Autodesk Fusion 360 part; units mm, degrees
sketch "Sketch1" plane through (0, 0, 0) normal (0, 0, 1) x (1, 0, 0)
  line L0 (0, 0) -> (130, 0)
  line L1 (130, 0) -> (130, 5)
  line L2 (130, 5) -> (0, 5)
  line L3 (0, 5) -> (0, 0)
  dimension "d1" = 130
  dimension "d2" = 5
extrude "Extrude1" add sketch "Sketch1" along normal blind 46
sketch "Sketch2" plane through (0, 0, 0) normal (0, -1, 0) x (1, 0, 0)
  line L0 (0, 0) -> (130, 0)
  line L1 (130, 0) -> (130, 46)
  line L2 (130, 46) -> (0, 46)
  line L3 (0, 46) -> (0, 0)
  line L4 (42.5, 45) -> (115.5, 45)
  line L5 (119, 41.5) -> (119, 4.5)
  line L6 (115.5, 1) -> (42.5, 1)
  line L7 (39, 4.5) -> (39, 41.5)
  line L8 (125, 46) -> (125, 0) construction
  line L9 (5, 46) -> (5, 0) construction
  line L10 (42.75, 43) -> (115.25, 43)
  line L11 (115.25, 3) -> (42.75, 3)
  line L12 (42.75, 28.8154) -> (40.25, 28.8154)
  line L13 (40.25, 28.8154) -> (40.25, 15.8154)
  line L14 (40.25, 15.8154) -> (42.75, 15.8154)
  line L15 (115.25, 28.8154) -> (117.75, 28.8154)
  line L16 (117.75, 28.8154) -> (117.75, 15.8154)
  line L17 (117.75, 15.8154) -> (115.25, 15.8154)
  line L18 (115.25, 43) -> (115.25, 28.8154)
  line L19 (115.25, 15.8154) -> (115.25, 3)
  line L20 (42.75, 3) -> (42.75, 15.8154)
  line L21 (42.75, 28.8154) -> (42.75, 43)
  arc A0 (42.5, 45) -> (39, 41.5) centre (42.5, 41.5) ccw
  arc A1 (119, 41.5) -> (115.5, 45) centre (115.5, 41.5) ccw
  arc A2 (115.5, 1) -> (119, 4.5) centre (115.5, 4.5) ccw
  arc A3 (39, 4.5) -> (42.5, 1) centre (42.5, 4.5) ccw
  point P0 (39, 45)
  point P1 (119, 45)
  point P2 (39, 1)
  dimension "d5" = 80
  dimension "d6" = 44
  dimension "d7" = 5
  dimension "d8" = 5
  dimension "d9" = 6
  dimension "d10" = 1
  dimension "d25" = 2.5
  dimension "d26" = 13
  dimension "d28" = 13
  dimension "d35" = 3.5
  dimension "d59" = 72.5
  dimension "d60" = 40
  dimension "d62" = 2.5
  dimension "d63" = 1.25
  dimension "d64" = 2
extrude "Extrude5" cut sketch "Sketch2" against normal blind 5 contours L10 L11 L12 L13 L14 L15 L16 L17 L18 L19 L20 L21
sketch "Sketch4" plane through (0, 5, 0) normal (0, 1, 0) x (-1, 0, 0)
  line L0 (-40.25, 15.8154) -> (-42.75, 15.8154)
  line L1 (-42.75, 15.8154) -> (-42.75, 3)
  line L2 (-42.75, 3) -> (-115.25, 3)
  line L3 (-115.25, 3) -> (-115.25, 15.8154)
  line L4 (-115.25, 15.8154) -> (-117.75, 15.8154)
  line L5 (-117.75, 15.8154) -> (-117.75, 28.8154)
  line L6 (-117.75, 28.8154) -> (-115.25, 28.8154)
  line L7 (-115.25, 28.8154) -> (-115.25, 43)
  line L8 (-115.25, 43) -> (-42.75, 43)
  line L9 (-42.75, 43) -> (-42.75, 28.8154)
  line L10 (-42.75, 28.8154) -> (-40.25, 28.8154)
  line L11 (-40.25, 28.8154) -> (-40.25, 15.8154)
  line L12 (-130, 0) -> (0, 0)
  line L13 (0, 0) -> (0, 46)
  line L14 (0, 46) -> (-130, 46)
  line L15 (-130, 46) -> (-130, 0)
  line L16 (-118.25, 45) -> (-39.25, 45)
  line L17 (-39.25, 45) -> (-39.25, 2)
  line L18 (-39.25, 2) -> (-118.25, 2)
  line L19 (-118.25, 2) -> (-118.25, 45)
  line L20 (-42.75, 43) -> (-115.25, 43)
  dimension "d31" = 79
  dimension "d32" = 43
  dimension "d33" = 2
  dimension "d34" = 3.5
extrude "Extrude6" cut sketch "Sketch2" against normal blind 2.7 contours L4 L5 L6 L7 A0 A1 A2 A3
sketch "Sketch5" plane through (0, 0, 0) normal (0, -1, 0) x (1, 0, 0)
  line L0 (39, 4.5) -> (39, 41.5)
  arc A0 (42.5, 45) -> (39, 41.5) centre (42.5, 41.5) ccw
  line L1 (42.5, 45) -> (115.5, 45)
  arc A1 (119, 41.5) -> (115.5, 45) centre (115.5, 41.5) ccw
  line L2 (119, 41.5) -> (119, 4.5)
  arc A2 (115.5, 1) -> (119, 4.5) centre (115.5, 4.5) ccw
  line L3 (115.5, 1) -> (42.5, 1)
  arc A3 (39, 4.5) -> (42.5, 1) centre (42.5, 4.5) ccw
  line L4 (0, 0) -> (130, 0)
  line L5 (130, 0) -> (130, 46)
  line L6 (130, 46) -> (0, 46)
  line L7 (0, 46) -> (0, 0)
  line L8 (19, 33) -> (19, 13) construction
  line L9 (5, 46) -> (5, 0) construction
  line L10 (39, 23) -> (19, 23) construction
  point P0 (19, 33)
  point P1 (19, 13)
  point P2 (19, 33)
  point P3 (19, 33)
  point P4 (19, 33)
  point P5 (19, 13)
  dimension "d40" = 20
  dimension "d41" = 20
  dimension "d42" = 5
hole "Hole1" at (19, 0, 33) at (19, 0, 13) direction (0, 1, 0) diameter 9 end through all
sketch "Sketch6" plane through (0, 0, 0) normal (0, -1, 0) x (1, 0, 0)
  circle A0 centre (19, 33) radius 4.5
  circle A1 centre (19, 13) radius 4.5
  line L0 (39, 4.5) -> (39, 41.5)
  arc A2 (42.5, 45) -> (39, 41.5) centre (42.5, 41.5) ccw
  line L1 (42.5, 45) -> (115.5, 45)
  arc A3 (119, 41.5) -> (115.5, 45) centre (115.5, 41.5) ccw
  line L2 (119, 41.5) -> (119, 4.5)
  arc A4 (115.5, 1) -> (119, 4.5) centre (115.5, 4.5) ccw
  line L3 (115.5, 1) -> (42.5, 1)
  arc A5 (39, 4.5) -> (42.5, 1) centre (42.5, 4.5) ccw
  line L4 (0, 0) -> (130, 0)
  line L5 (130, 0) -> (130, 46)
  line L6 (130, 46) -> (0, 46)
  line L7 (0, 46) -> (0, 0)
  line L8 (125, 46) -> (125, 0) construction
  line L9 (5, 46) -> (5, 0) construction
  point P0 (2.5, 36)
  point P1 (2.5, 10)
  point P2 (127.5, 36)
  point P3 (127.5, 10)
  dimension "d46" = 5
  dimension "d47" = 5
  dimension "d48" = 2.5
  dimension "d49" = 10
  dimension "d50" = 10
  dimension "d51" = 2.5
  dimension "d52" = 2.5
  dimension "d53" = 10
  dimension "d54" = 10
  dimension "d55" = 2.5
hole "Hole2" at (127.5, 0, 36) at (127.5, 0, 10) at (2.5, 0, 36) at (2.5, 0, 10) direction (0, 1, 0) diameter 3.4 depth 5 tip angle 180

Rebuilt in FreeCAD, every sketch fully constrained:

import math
import FreeCAD as App
import Part
import Sketcher
Q = App.Units.Quantity


def add_polygon(sketch, points):
    """Adds a closed chain of lines whose ends are joined by coincident constraints."""
    first, n = sketch.GeometryCount, len(points)
    for a, b in zip(points, points[1:] + points[:1]):
        sketch.addGeometry(Part.LineSegment(App.Vector(*a, 0), App.Vector(*b, 0)), False)
    for i in range(n):
        sketch.addConstraint(Sketcher.Constraint("Coincident", first + i, 2, first + (i + 1) % n, 1))

doc = App.newDocument("Part")
body = doc.addObject("PartDesign::Body", "Body")

sketch1 = body.newObject("Sketcher::SketchObject", "Sketch")
sketch1.AttachmentSupport = (doc.getObject("XY_Plane"), [""])
sketch1.MapMode = "FlatFace"
add_polygon(sketch1, [(0, 5), (0, 0), (130, 0), (130, 5)])
sketch1.addConstraint([
    Sketcher.Constraint("Vertical", 0),
    Sketcher.Constraint("Horizontal", 1),
    Sketcher.Constraint("Vertical", 2),
    Sketcher.Constraint("Horizontal", 3),
    Sketcher.Constraint("Coincident", 0, 2, -1, 1),
    Sketcher.Constraint("DistanceX", 1, 1, 1, 2, Q("130 mm")),
    Sketcher.Constraint("DistanceY", 0, 2, 0, 1, Q("5 mm")),
])
pad1 = body.newObject("PartDesign::Pad", "Pad")
pad1.Profile = sketch1
pad1.Length = 46

sketch2 = body.newObject("Sketcher::SketchObject", "Sketch001")
sketch2.AttachmentSupport = (doc.getObject("XZ_Plane"), [""])
sketch2.MapMode = "FlatFace"
add_polygon(sketch2, [(115.2, 43), (42.8, 43), (42.8, 28.8), (40.2, 28.8), (40.2, 15.8), (42.8, 15.8), (42.8, 3), (115.2, 3), (115.2, 15.8), (117.8, 15.8), (117.8, 28.8), (115.2, 28.8)])
sketch2.addConstraint([
    Sketcher.Constraint("Horizontal", 0),
    Sketcher.Constraint("Vertical", 1),
    Sketcher.Constraint("Horizontal", 2),
    Sketcher.Constraint("Vertical", 3),
    Sketcher.Constraint("Horizontal", 4),
    Sketcher.Constraint("Vertical", 5),
    Sketcher.Constraint("Horizontal", 6),
    Sketcher.Constraint("Vertical", 7),
    Sketcher.Constraint("Horizontal", 8),
    Sketcher.Constraint("Vertical", 9),
    Sketcher.Constraint("Horizontal", 10),
    Sketcher.Constraint("Vertical", 11),
    Sketcher.Constraint("Horizontal", 4, 2, 7, 2),
    Sketcher.Constraint("Horizontal", 2, 2, 9, 2),
    Sketcher.Constraint("Vertical", 1, 2, 4, 2),
    Sketcher.Constraint("Vertical", 7, 2, 10, 2),
    Sketcher.Constraint("Equal", 4, 8),
    Sketcher.Constraint("DistanceY", 3, 2, 3, 1, Q("13 mm")),
    Sketcher.Constraint("DistanceX", 0, 2, 0, 1, Q("72.5 mm")),
    Sketcher.Constraint("DistanceX", 2, 2, 2, 1, Q("2.5 mm")),
    Sketcher.Constraint("DistanceY", 5, 2, 0, 2, Q("40 mm")),
    Sketcher.Constraint("DistanceY", -1, 1, 0, 2, Q("43 mm")),
    Sketcher.Constraint("DistanceX", -1, 1, 0, 2, Q("42.75 mm")),
    Sketcher.Constraint("DistanceY", 1, 2, 1, 1, Q("14.1846 mm")),
])
pocket1 = body.newObject("PartDesign::Pocket", "Pocket")
pocket1.Profile = sketch2
pocket1.Length = 5

sketch3 = body.newObject("Sketcher::SketchObject", "Sketch002")
sketch3.AttachmentSupport = (doc.getObject("XZ_Plane"), [""])
sketch3.MapMode = "FlatFace"
sketch3.addGeometry(Part.LineSegment(App.Vector(115.5, 45, 0), App.Vector(42.5, 45, 0)), False)
sketch3.addGeometry(Part.ArcOfCircle(Part.Circle(App.Vector(42.5, 41.5, 0), App.Vector(0, 0, 1), 3.5), math.radians(90), math.radians(180)), False)
sketch3.addGeometry(Part.LineSegment(App.Vector(39, 41.5, 0), App.Vector(39, 4.5, 0)), False)
sketch3.addGeometry(Part.ArcOfCircle(Part.Circle(App.Vector(42.5, 4.5, 0), App.Vector(0, 0, 1), 3.5), math.radians(180), math.radians(270)), False)
sketch3.addGeometry(Part.LineSegment(App.Vector(42.5, 1, 0), App.Vector(115.5, 1, 0)), False)
sketch3.addGeometry(Part.ArcOfCircle(Part.Circle(App.Vector(115.5, 4.5, 0), App.Vector(0, 0, 1), 3.5), math.radians(-90), math.radians(0)), False)
sketch3.addGeometry(Part.LineSegment(App.Vector(119, 4.5, 0), App.Vector(119, 41.5, 0)), False)
sketch3.addGeometry(Part.ArcOfCircle(Part.Circle(App.Vector(115.5, 41.5, 0), App.Vector(0, 0, 1), 3.5), math.radians(0), math.radians(90)), False)
add_polygon(sketch3, [(42.8, 28.8), (42.8, 43), (115.2, 43), (115.2, 28.8), (117.8, 28.8), (117.8, 15.8), (115.2, 15.8), (115.2, 3), (42.8, 3), (42.8, 15.8), (40.2, 15.8), (40.2, 28.8)])
sketch3.addConstraint([
    Sketcher.Constraint("Tangent", 0, 2, 1, 1),
    Sketcher.Constraint("Tangent", 1, 2, 2, 1),
    Sketcher.Constraint("Tangent", 2, 2, 3, 1),
    Sketcher.Constraint("Tangent", 3, 2, 4, 1),
    Sketcher.Constraint("Tangent", 4, 2, 5, 1),
    Sketcher.Constraint("Tangent", 5, 2, 6, 1),
    Sketcher.Constraint("Tangent", 6, 2, 7, 1),
    Sketcher.Constraint("Tangent", 7, 2, 0, 1),
    Sketcher.Constraint("Horizontal", 0),
    Sketcher.Constraint("Vertical", 2),
    Sketcher.Constraint("Horizontal", 4),
    Sketcher.Constraint("Vertical", 6),
    Sketcher.Constraint("Vertical", 8),
    Sketcher.Constraint("Horizontal", 9),
    Sketcher.Constraint("Vertical", 10),
    Sketcher.Constraint("Horizontal", 11),
    Sketcher.Constraint("Vertical", 12),
    Sketcher.Constraint("Horizontal", 13),
    Sketcher.Constraint("Vertical", 14),
    Sketcher.Constraint("Horizontal", 15),
    Sketcher.Constraint("Vertical", 16),
    Sketcher.Constraint("Horizontal", 17),
    Sketcher.Constraint("Vertical", 18),
    Sketcher.Constraint("Horizontal", 19),
    Sketcher.Constraint("Equal", 1, 3),
    Sketcher.Constraint("Equal", 3, 5),
    Sketcher.Constraint("Equal", 5, 7),
    Sketcher.Constraint("Horizontal", 13, 2, 16, 2),
    Sketcher.Constraint("Horizontal", 11, 2, 18, 2),
    Sketcher.Constraint("Vertical", 10, 2, 13, 2),
    Sketcher.Constraint("Vertical", 8, 2, 15, 2),
    Sketcher.Constraint("Equal", 13, 17),
    Sketcher.Constraint("Radius", 1, Q("3.5 mm")),
    Sketcher.Constraint("DistanceY", 12, 2, 12, 1, Q("13 mm")),
    Sketcher.Constraint("DistanceX", 9, 1, 9, 2, Q("72.5 mm")),
    Sketcher.Constraint("DistanceX", 11, 1, 11, 2, Q("2.5 mm")),
    Sketcher.Constraint("DistanceY", -1, 1, 3, 2, Q("1 mm")),
    Sketcher.Constraint("DistanceY", 3, 2, 0, 2, Q("44 mm")),
    Sketcher.Constraint("DistanceY", 8, 2, 0, 2, Q("2 mm")),
    Sketcher.Constraint("DistanceY", 4, 2, 14, 2, Q("2 mm")),
    Sketcher.Constraint("DistanceX", 0, 2, 0, 1, Q("73 mm")),
    Sketcher.Constraint("DistanceX", 11, 2, 6, 2, Q("1.25 mm")),
    Sketcher.Constraint("DistanceX", -1, 1, 1, 2, Q("39 mm")),
    Sketcher.Constraint("DistanceY", 8, 1, 8, 2, Q("14.1846 mm")),
])
pocket2 = body.newObject("PartDesign::Pocket", "Pocket001")
pocket2.Profile = sketch3
pocket2.Length = 2.7

sketch4 = body.newObject("Sketcher::SketchObject", "Sketch003")
sketch4.AttachmentSupport = (doc.getObject("XZ_Plane"), [""])
sketch4.MapMode = "FlatFace"
sketch4.addGeometry([
    Part.Circle(App.Vector(19, 33, 0), App.Vector(0, 0, 1), 4.5),
    Part.Circle(App.Vector(19, 13, 0), App.Vector(0, 0, 1), 4.5),
], False)
sketch4.addConstraint([
    Sketcher.Constraint("Equal", 0, 1),
    Sketcher.Constraint("Vertical", 0, 3, 1, 3),
    Sketcher.Constraint("Diameter", 0, Q("9 mm")),
    Sketcher.Constraint("DistanceX", -1, 1, 0, 3, Q("19 mm")),
    Sketcher.Constraint("DistanceY", -1, 1, 0, 3, Q("33 mm")),
    Sketcher.Constraint("DistanceY", -1, 1, 1, 3, Q("13 mm")),
])
doc.recompute()
hole = body.newObject("PartDesign::Hole", "Hole")
hole.Profile = sketch4
hole.ThreadType = "None"
hole.Diameter = 9
hole.DepthType = "ThroughAll"

sketch5 = body.newObject("Sketcher::SketchObject", "Sketch004")
sketch5.AttachmentSupport = (doc.getObject("XZ_Plane"), [""])
sketch5.MapMode = "FlatFace"
sketch5.addGeometry([
    Part.Circle(App.Vector(127.5, 36, 0), App.Vector(0, 0, 1), 1.7),
    Part.Circle(App.Vector(127.5, 10, 0), App.Vector(0, 0, 1), 1.7),
    Part.Circle(App.Vector(2.5, 36, 0), App.Vector(0, 0, 1), 1.7),
    Part.Circle(App.Vector(2.5, 10, 0), App.Vector(0, 0, 1), 1.7),
], False)
sketch5.addConstraint([
    Sketcher.Constraint("Equal", 0, 1),
    Sketcher.Constraint("Equal", 1, 2),
    Sketcher.Constraint("Equal", 2, 3),
    Sketcher.Constraint("Horizontal", 0, 3, 2, 3),
    Sketcher.Constraint("Horizontal", 1, 3, 3, 3),
    Sketcher.Constraint("Vertical", 0, 3, 1, 3),
    Sketcher.Constraint("Vertical", 2, 3, 3, 3),
    Sketcher.Constraint("Diameter", 0, Q("3.4 mm")),
    Sketcher.Constraint("DistanceY", -1, 1, 0, 3, Q("36 mm")),
    Sketcher.Constraint("DistanceY", -1, 1, 1, 3, Q("10 mm")),
    Sketcher.Constraint("DistanceX", 2, 3, 0, 3, Q("125 mm")),
    Sketcher.Constraint("DistanceX", -1, 1, 0, 3, Q("127.5 mm")),
])
doc.recompute()
hole2 = body.newObject("PartDesign::Hole", "Hole001")
hole2.Profile = sketch5
hole2.ThreadType = "None"
hole2.Diameter = 3.4
hole2.DepthType = "Dimension"
hole2.Depth = 5
hole2.DrillPoint = "Flat"

doc.recompute()
